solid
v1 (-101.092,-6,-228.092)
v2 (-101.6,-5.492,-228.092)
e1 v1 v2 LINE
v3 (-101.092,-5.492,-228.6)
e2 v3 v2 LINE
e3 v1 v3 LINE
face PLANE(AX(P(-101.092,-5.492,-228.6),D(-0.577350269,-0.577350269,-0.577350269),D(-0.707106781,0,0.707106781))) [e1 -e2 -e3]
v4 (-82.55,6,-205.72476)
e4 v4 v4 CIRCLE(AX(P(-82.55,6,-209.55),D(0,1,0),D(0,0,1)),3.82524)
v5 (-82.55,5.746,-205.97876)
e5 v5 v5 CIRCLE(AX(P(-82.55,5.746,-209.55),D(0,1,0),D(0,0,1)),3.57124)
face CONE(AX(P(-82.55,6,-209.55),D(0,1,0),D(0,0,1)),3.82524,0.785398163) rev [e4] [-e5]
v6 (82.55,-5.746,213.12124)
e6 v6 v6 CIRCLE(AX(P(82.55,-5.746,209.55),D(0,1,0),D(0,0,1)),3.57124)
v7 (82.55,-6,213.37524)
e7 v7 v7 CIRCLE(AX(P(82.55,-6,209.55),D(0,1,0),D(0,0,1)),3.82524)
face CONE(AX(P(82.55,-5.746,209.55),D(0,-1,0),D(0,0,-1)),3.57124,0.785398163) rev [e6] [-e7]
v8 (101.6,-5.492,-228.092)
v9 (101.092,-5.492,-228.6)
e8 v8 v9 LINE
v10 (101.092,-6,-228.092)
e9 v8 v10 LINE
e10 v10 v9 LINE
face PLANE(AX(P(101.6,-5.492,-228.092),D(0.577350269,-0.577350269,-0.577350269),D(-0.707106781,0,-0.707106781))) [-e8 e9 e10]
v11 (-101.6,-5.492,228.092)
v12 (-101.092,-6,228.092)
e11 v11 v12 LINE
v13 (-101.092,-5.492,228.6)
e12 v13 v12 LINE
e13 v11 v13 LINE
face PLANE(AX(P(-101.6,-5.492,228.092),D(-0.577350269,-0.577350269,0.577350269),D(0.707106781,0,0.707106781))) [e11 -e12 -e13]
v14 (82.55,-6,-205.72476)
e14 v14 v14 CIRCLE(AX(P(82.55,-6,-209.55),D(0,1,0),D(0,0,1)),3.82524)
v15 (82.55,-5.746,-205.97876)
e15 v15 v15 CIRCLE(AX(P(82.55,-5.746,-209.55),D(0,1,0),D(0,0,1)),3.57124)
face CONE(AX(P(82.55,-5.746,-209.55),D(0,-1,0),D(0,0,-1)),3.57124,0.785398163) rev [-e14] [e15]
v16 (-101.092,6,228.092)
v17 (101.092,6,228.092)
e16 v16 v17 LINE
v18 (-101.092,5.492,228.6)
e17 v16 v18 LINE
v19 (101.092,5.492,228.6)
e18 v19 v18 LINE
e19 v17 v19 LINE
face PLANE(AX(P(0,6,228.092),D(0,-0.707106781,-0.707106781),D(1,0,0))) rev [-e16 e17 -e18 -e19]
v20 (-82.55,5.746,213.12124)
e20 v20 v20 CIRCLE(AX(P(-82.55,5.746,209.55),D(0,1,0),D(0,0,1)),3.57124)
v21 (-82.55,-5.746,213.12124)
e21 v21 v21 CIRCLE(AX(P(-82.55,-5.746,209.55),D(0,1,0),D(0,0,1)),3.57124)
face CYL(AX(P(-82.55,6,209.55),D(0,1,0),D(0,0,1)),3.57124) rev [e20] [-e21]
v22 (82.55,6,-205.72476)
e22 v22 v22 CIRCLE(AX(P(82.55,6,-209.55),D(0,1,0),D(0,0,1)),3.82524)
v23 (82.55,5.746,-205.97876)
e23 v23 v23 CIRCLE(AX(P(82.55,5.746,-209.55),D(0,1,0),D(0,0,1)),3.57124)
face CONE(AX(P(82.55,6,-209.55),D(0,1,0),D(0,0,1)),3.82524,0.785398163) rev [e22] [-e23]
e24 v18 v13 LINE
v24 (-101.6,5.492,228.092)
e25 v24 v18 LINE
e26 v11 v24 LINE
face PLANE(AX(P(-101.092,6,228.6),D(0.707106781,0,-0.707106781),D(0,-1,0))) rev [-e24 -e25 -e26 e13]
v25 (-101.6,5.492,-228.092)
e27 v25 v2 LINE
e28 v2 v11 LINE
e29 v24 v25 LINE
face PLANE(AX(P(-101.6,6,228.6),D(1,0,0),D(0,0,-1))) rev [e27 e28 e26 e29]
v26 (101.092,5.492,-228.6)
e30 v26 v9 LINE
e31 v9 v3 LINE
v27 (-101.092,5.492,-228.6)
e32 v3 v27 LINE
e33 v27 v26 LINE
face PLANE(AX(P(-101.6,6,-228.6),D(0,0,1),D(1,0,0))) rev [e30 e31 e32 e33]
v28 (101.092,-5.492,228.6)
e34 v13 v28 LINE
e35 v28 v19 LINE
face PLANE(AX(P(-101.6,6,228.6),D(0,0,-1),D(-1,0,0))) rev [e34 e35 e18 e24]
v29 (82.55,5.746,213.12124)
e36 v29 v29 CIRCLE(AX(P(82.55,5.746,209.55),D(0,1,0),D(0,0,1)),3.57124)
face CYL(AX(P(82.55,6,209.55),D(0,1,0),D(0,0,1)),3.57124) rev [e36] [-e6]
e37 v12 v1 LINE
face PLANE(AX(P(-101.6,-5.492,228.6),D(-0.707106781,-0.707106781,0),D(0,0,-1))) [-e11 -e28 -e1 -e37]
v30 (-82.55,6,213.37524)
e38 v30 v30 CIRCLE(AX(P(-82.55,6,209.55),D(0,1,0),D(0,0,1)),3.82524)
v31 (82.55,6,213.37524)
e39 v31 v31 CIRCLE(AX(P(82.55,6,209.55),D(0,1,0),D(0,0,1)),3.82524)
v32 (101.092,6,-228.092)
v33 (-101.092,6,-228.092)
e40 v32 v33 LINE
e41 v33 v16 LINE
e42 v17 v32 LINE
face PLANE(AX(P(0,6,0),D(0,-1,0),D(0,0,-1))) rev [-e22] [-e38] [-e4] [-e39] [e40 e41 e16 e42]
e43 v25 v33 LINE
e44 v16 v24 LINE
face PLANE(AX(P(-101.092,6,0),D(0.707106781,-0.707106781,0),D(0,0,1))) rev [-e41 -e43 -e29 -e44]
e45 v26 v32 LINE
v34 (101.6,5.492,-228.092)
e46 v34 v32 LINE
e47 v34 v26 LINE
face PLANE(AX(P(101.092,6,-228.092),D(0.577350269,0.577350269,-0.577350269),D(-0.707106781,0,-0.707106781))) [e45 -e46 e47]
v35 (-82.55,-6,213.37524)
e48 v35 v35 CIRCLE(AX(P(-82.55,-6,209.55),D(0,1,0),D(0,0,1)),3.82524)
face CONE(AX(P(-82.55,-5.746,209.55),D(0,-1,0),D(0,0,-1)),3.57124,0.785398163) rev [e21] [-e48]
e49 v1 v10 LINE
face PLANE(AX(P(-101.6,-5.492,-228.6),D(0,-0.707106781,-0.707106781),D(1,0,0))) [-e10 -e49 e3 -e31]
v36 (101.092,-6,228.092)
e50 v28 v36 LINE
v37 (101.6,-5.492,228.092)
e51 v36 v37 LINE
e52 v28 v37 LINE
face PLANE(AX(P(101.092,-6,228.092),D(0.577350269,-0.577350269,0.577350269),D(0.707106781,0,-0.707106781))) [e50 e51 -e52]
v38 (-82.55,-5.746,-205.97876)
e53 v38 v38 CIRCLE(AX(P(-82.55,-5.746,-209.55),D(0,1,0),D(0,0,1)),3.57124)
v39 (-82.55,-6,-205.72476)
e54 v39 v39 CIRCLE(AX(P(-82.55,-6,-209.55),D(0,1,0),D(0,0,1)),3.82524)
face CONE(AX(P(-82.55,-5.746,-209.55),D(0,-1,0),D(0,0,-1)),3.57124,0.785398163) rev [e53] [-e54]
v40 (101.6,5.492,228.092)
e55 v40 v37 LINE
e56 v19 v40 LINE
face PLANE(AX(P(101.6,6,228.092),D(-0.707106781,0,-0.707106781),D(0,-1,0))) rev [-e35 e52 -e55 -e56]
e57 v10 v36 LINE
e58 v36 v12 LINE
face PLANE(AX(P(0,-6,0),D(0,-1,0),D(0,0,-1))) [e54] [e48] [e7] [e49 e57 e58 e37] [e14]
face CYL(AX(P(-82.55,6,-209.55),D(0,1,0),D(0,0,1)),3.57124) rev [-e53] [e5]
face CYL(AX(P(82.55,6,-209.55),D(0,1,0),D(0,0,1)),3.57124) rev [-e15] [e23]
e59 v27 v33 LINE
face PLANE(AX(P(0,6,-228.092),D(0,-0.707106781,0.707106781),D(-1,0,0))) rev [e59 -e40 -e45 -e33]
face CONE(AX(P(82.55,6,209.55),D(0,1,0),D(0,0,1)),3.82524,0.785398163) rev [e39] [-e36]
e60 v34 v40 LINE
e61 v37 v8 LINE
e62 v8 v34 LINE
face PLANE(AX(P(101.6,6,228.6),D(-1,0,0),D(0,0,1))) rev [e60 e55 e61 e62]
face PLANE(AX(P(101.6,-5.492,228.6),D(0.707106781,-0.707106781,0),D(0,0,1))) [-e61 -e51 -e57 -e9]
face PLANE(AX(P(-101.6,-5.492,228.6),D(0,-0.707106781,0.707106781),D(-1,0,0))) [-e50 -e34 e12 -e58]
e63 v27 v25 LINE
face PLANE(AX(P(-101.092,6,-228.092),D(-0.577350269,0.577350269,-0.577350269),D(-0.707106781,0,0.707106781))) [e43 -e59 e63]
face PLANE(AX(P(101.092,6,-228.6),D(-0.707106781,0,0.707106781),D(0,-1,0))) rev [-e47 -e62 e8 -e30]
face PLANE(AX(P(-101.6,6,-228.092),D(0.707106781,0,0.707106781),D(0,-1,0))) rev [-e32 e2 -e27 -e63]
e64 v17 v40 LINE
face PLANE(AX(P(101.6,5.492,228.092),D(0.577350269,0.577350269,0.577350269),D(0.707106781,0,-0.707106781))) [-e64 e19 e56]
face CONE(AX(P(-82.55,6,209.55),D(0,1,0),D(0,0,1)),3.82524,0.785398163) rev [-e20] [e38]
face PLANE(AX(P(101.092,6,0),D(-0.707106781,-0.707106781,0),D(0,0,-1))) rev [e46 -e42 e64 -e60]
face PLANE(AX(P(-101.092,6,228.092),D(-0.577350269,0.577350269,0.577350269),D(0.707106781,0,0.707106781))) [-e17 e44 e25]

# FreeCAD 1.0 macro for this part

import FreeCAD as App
import Part
import Sketcher

V = App.Vector
Q = App.Units.Quantity


def edges_at(feature, points):
    """Names of the edges that pass closest to the given points."""
    edges = feature.Shape.Edges
    near = lambda p: min(range(len(edges)), key=lambda i: edges[i].distToShape(Part.Vertex(*p))[0])
    return sorted({f"Edge{near(p) + 1}" for p in points})

doc = App.newDocument("Part")
body = doc.addObject("PartDesign::Body", "Body")

# Sketch on XZ plane
sketch1 = body.newObject("Sketcher::SketchObject", "Sketch")
sketch1.AttachmentSupport = (doc.getObject("XZ_Plane"), [""])
sketch1.MapMode = "FlatFace"
sketch1.addGeometry([
    Part.LineSegment(V(-102, -229, 0), V(-102, 229, 0)),
    Part.LineSegment(V(-102, 229, 0), V(102, 229, 0)),
    Part.LineSegment(V(102, 229, 0), V(102, -229, 0)),
    Part.LineSegment(V(102, -229, 0), V(-102, -229, 0)),
], False)
sketch1.addConstraint([
    Sketcher.Constraint("Coincident", 0, 2, 1, 1),
    Sketcher.Constraint("Coincident", 1, 2, 2, 1),
    Sketcher.Constraint("Coincident", 2, 2, 3, 1),
    Sketcher.Constraint("Coincident", 3, 2, 0, 1),
    Sketcher.Constraint("Vertical", 0),
    Sketcher.Constraint("Horizontal", 1),
    Sketcher.Constraint("Vertical", 2),
    Sketcher.Constraint("Horizontal", 3),
    Sketcher.Constraint("Symmetric", 0, 2, 2, 2, -1, 1),
    Sketcher.Constraint("DistanceX", 1, 1, 1, 2, Q("8 in")),
    Sketcher.Constraint("DistanceY", 0, 1, 0, 2, Q("18 in")),
])
pad1 = body.newObject("PartDesign::Pad", "Pad")
pad1.Profile = sketch1
pad1.Length = 12
pad1.Midplane = True

# Sketch on YZ plane
sketch2 = body.newObject("Sketcher::SketchObject", "Sketch001")
sketch2.AttachmentSupport = (doc.getObject("YZ_Plane"), [""])
sketch2.MapMode = "FlatFace"
sketch2.AttachmentOffset = App.Placement(V(0, 0, -3.25 * 25.4), App.Rotation())
sketch2.addGeometry([
    Part.LineSegment(V(-6, -209.55, 0), V(6, -209.55, 0)),  # 0
    Part.LineSegment(V(6, -209.55, 0), V(6, -205.72, 0)),  # 1
    Part.LineSegment(V(6, -205.72, 0), V(5.75, -205.98, 0)),  # 2
    Part.LineSegment(V(5.75, -205.98, 0), V(-5.75, -205.98, 0)),  # 3
    Part.LineSegment(V(-5.75, -205.98, 0), V(-6, -205.72, 0)),  # 4
    Part.LineSegment(V(-6, -205.72, 0), V(-6, -209.55, 0)),  # 5
], False)
sketch2.addGeometry(Part.LineSegment(V(6, -209.55, 0), V(-6, -209.55, 0)), True)  # axis
sketch2.addConstraint([
    Sketcher.Constraint("Coincident", 0, 2, 1, 1),
    Sketcher.Constraint("Coincident", 1, 2, 2, 1),
    Sketcher.Constraint("Coincident", 2, 2, 3, 1),
    Sketcher.Constraint("Coincident", 3, 2, 4, 1),
    Sketcher.Constraint("Coincident", 4, 2, 5, 1),
    Sketcher.Constraint("Coincident", 5, 2, 0, 1),
    Sketcher.Constraint("Horizontal", 0),
    Sketcher.Constraint("Vertical", 1),
    Sketcher.Constraint("Horizontal", 3),
    Sketcher.Constraint("Vertical", 5),
    Sketcher.Constraint("Horizontal", 6),
    Sketcher.Constraint("Coincident", 6, 1, 0, 2),
    Sketcher.Constraint("Symmetric", 1, 2, 4, 2, -2),
    Sketcher.Constraint("Perpendicular", 2, 4),
    Sketcher.Constraint("Vertical", 4, 2, 6, 2),
    Sketcher.Constraint("Equal", 2, 4),
    Sketcher.Constraint("DistanceY", 0, 2, -1, 1, Q("8.25 in")),
    Sketcher.Constraint("DistanceX", 2, 2, 1, 2, Q("0.01 in")),
    Sketcher.Constraint("DistanceY", 1, 1, 1, 2, Q("0.1506 in")),
    Sketcher.Constraint("DistanceX", 0, 1, 0, 2, 12.0),
])
groove = body.newObject("PartDesign::Groove", "Groove")
groove.Profile = sketch2
groove.ReferenceAxis = (sketch2, ["Axis0"])
groove.Angle = 360
doc.recompute()

linearpattern = body.newObject("PartDesign::LinearPattern", "LinearPattern")
linearpattern.Originals = [groove]
linearpattern.Direction = (doc.getObject("X_Axis"), [""])
linearpattern.Mode = "offset"
linearpattern.Offset = Q("6.5 in")
linearpattern.Occurrences = 2
body.Tip = linearpattern
doc.recompute()

datumline = body.newObject("PartDesign::Line", "DatumLine")
datumline.Placement = App.Placement(V(0, 0, 0), App.Rotation(V(0, 0, 1), V(0.366524518, 0, 0.930408393)))
linearpattern2 = body.newObject("PartDesign::LinearPattern", "LinearPattern001")
linearpattern2.Originals = [groove]
linearpattern2.Direction = (datumline, [""])
linearpattern2.Mode = "offset"
linearpattern2.Offset = 450.447355
linearpattern2.Occurrences = 2
body.Tip = linearpattern2
doc.recompute()

linearpattern3 = body.newObject("PartDesign::LinearPattern", "LinearPattern002")
linearpattern3.Originals = [groove]
linearpattern3.Direction = (doc.getObject("Z_Axis"), [""])
linearpattern3.Mode = "offset"
linearpattern3.Offset = Q("16.5 in")
linearpattern3.Occurrences = 2
body.Tip = linearpattern3
doc.recompute()

chamfer = body.newObject("PartDesign::Chamfer", "Chamfer")
chamfer.Base = (linearpattern3, edges_at(linearpattern3, [
    (-101.6, 6, 0),
    (0, 6, 228.6),
    (101.6, 6, 0),
    (0, -6, 228.6),
    (-101.6, -6, 0),
    (0, -6, -228.6),
    (101.6, -6, 0),
    (101.6, 0, 228.6),
    (-101.6, 0, 228.6),
    (-101.6, 0, -228.6),
    (101.6, 0, -228.6),
    (0, 6, -228.6),
]))
chamfer.Size = Q("0.02 in")

doc.recompute()
